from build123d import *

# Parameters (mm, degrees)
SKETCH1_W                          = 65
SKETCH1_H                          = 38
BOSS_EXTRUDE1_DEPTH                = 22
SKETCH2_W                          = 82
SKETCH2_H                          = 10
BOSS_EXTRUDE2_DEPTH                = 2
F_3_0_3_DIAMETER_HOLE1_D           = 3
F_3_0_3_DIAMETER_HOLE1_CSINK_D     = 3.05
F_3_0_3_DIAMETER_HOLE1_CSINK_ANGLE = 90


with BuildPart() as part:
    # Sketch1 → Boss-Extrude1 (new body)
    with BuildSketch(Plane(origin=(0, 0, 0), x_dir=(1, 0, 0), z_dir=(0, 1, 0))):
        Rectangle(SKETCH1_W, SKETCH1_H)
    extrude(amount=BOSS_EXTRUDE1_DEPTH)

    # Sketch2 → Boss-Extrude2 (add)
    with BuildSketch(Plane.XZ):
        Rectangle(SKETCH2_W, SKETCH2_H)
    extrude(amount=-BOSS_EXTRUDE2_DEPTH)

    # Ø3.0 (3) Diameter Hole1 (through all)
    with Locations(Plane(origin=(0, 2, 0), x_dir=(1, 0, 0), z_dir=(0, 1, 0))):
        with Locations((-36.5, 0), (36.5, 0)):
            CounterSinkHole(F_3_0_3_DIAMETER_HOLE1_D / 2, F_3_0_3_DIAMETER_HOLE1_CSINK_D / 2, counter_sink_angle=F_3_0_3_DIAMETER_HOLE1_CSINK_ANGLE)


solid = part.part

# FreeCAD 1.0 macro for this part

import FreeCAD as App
import Part
import Sketcher

doc = App.newDocument("Part")
params = doc.addObject("Spreadsheet::Sheet", "Params")
for row, (alias, value) in enumerate([
    ("sketch1_width", "65 mm"),
    ("sketch1_height", "38 mm"),
    ("pad1_length", "22 mm"),
    ("sketch2_width", "82 mm"),
    ("sketch2_height", "10 mm"),
    ("pad2_length", "2 mm"),
    ("sketch3_diameter", "3 mm"),
    ("hole_diameter", "3 mm"),
    ("hole_csink_diameter", "3.05 mm"),
], start=1):
    params.set(f"A{row}", alias)
    params.set(f"B{row}", "=" + value)
    params.setAlias(f"B{row}", alias)

body = doc.addObject("PartDesign::Body", "Body")

sketch1 = body.newObject("Sketcher::SketchObject", "Sketch")
sketch1.AttachmentSupport = (doc.getObject("XZ_Plane"), [""])
sketch1.MapMode = "FlatFace"
sketch1.addGeometry([
    Part.LineSegment(App.Vector(-32, -19, 0), App.Vector(-32, 19, 0)),
    Part.LineSegment(App.Vector(-32, 19, 0), App.Vector(32, 19, 0)),
    Part.LineSegment(App.Vector(32, 19, 0), App.Vector(32, -19, 0)),
    Part.LineSegment(App.Vector(32, -19, 0), App.Vector(-32, -19, 0)),
], False)
sketch1.addConstraint([
    Sketcher.Constraint("Coincident", 0, 2, 1, 1),
    Sketcher.Constraint("Coincident", 1, 2, 2, 1),
    Sketcher.Constraint("Coincident", 2, 2, 3, 1),
    Sketcher.Constraint("Coincident", 3, 2, 0, 1),
    Sketcher.Constraint("Vertical", 0),
    Sketcher.Constraint("Horizontal", 1),
    Sketcher.Constraint("Vertical", 2),
    Sketcher.Constraint("Horizontal", 3),
    Sketcher.Constraint("Symmetric", 0, 2, 2, 2, -1, 1),
    Sketcher.Constraint("DistanceX", 1, 1, 1, 2, 65.0),
    Sketcher.Constraint("DistanceY", 0, 1, 0, 2, 38.0),
])
sketch1.setExpression("Constraints[9]", "Params.sketch1_width")
sketch1.setExpression("Constraints[10]", "Params.sketch1_height")
pad1 = body.newObject("PartDesign::Pad", "Pad")
pad1.Profile = sketch1
pad1.setExpression("Length", "Params.pad1_length")
pad1.Reversed = True

sketch2 = body.newObject("Sketcher::SketchObject", "Sketch001")
sketch2.AttachmentSupport = (doc.getObject("XZ_Plane"), [""])
sketch2.MapMode = "FlatFace"
sketch2.addGeometry([
    Part.LineSegment(App.Vector(-41, 5, 0), App.Vector(-41, -5, 0)),
    Part.LineSegment(App.Vector(-41, -5, 0), App.Vector(41, -5, 0)),
    Part.LineSegment(App.Vector(41, -5, 0), App.Vector(41, 5, 0)),
    Part.LineSegment(App.Vector(41, 5, 0), App.Vector(-41, 5, 0)),
], False)
sketch2.addConstraint([
    Sketcher.Constraint("Coincident", 0, 2, 1, 1),
    Sketcher.Constraint("Coincident", 1, 2, 2, 1),
    Sketcher.Constraint("Coincident", 2, 2, 3, 1),
    Sketcher.Constraint("Coincident", 3, 2, 0, 1),
    Sketcher.Constraint("Vertical", 0),
    Sketcher.Constraint("Horizontal", 1),
    Sketcher.Constraint("Vertical", 2),
    Sketcher.Constraint("Horizontal", 3),
    Sketcher.Constraint("Symmetric", 0, 2, 2, 2, -1, 1),
    Sketcher.Constraint("DistanceX", 1, 1, 1, 2, 82.0),
    Sketcher.Constraint("DistanceY", 0, 2, 0, 1, 10.0),
])
sketch2.setExpression("Constraints[9]", "Params.sketch2_width")
sketch2.setExpression("Constraints[10]", "Params.sketch2_height")
pad2 = body.newObject("PartDesign::Pad", "Pad001")
pad2.Profile = sketch2
pad2.setExpression("Length", "Params.pad2_length")
pad2.Reversed = True

sketch3 = body.newObject("Sketcher::SketchObject", "Sketch002")
sketch3.AttachmentSupport = (doc.getObject("XZ_Plane"), [""])
sketch3.MapMode = "FlatFace"
sketch3.AttachmentOffset = App.Placement(App.Vector(0, 0, -2), App.Rotation())
sketch3.addGeometry([
    Part.Circle(App.Vector(-36.5, 0, 0), App.Vector(0, 0, 1), 1.5),
    Part.Circle(App.Vector(36.5, 0, 0), App.Vector(0, 0, 1), 1.5),
], False)
sketch3.addConstraint([
    Sketcher.Constraint("Equal", 0, 1),
    Sketcher.Constraint("Symmetric", 0, 3, 1, 3, -1, 1),
    Sketcher.Constraint("PointOnObject", 0, 3, -1),
    Sketcher.Constraint("Diameter", 0, 3.0),
    Sketcher.Constraint("DistanceX", 0, 3, 1, 3, 73.0),
])
sketch3.setExpression("Constraints[3]", "Params.sketch3_diameter")
doc.recompute()
hole = body.newObject("PartDesign::Hole", "Hole")
hole.Profile = sketch3
hole.ThreadType = "None"
hole.setExpression("Diameter", "Params.hole_diameter")
hole.DepthType = "ThroughAll"
hole.HoleCutType = "Countersink"
hole.setExpression("HoleCutDiameter", "Params.hole_csink_diameter")
hole.HoleCutCountersinkAngle = 90
hole.Reversed = True

doc.recompute()
